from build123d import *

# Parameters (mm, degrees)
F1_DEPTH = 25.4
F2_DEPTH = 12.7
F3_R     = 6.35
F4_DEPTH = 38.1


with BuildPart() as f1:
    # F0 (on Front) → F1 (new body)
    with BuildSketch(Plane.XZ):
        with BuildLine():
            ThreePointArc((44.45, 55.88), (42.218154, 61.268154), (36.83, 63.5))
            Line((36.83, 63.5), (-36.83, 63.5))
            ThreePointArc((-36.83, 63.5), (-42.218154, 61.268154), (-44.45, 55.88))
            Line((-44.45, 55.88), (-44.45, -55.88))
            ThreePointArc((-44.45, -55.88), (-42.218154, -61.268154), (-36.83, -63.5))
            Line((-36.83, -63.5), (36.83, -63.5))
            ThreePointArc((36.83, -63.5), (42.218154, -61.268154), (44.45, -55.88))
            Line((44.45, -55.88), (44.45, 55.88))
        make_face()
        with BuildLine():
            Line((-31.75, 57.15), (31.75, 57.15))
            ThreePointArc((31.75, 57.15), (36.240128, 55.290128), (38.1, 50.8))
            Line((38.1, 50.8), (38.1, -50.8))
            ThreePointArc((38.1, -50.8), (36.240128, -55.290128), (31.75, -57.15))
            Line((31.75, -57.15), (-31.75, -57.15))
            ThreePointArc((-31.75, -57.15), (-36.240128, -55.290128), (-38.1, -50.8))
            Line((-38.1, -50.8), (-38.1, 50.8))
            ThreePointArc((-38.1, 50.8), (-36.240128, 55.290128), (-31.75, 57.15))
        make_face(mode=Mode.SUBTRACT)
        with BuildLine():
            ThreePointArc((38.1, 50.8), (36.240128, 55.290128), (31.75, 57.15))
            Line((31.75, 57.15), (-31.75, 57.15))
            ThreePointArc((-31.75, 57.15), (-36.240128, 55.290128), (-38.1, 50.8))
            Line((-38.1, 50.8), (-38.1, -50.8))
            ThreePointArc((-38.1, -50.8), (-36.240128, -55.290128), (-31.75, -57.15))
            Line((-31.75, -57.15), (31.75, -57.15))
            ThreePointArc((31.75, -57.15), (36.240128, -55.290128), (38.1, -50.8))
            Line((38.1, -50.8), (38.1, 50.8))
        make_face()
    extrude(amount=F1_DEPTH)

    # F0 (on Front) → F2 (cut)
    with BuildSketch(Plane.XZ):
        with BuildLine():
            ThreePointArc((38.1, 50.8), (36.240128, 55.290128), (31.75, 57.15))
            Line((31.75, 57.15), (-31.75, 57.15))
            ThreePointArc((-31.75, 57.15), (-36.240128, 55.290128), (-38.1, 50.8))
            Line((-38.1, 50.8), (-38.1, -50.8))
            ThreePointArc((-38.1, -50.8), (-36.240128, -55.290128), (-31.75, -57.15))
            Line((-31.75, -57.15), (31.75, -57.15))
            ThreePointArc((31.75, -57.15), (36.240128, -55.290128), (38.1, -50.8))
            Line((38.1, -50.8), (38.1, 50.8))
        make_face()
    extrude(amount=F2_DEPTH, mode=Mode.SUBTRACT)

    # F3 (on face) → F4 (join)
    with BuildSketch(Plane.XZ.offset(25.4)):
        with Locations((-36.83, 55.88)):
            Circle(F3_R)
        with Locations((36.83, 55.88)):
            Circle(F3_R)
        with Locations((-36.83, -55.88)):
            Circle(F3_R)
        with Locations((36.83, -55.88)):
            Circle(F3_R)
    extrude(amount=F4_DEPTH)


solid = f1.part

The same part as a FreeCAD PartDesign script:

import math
import FreeCAD as App
import Part
import Sketcher
from FreeCAD import Vector
Q = App.Units.Quantity

doc = App.newDocument("Part")
body = doc.addObject("PartDesign::Body", "Body")

# Sketch on XZ plane
sketch1 = body.newObject("Sketcher::SketchObject", "Sketch")
sketch1.AttachmentSupport = (doc.getObject("XZ_Plane"), [""])
sketch1.MapMode = "FlatFace"
sketch1.addGeometry([
    Part.ArcOfCircle(Part.Circle(Vector(37, 56, 0), Vector(0, 0, 1), 8), math.radians(0), math.radians(90)),  # 0
    Part.LineSegment(Vector(37, 64, 0), Vector(-37, 64, 0)),  # 1
    Part.ArcOfCircle(Part.Circle(Vector(-37, 56, 0), Vector(0, 0, 1), 8), math.radians(90), math.radians(180)),  # 2
    Part.LineSegment(Vector(-44, 56, 0), Vector(-44, -56, 0)),  # 3
    Part.ArcOfCircle(Part.Circle(Vector(-37, -56, 0), Vector(0, 0, 1), 8), math.radians(180), math.radians(270)),  # 4
    Part.LineSegment(Vector(-37, -64, 0), Vector(37, -64, 0)),  # 5
    Part.ArcOfCircle(Part.Circle(Vector(37, -56, 0), Vector(0, 0, 1), 8), math.radians(-90), math.radians(0)),  # 6
    Part.LineSegment(Vector(44, -56, 0), Vector(44, 56, 0)),  # 7
], False)
sketch1.addConstraint([
    Sketcher.Constraint("Tangent", 0, 2, 1, 1),
    Sketcher.Constraint("Tangent", 1, 2, 2, 1),
    Sketcher.Constraint("Tangent", 2, 2, 3, 1),
    Sketcher.Constraint("Tangent", 3, 2, 4, 1),
    Sketcher.Constraint("Tangent", 4, 2, 5, 1),
    Sketcher.Constraint("Tangent", 5, 2, 6, 1),
    Sketcher.Constraint("Tangent", 6, 2, 7, 1),
    Sketcher.Constraint("Tangent", 7, 2, 0, 1),
    Sketcher.Constraint("Horizontal", 1),
    Sketcher.Constraint("Vertical", 3),
    Sketcher.Constraint("Horizontal", 5),
    Sketcher.Constraint("Vertical", 7),
    Sketcher.Constraint("Equal", 0, 2),
    Sketcher.Constraint("Equal", 2, 4),
    Sketcher.Constraint("Equal", 4, 6),
    Sketcher.Constraint("Symmetric", 0, 3, 4, 3, -1, 1),
    Sketcher.Constraint("Radius", 0, Q("0.3 in")),
    Sketcher.Constraint("DistanceX", 1, 2, 1, 1, Q("2.9 in")),
    Sketcher.Constraint("DistanceY", 3, 2, 3, 1, Q("4.4 in")),
])
pad1 = body.newObject("PartDesign::Pad", "Pad")
pad1.Profile = sketch1
pad1.Length = Q("1 in")

# Sketch on XZ plane
sketch2 = body.newObject("Sketcher::SketchObject", "Sketch001")
sketch2.AttachmentSupport = (doc.getObject("XZ_Plane"), [""])
sketch2.MapMode = "FlatFace"
sketch2.addGeometry([
    Part.ArcOfCircle(Part.Circle(Vector(32, 51, 0), Vector(0, 0, 1), 6), math.radians(0), math.radians(90)),  # 0
    Part.LineSegment(Vector(32, 57, 0), Vector(-32, 57, 0)),  # 1
    Part.ArcOfCircle(Part.Circle(Vector(-32, 51, 0), Vector(0, 0, 1), 6), math.radians(90), math.radians(180)),  # 2
    Part.LineSegment(Vector(-38, 51, 0), Vector(-38, -51, 0)),  # 3
    Part.ArcOfCircle(Part.Circle(Vector(-32, -51, 0), Vector(0, 0, 1), 6), math.radians(-180), math.radians(-90)),  # 4
    Part.LineSegment(Vector(-32, -57, 0), Vector(32, -57, 0)),  # 5
    Part.ArcOfCircle(Part.Circle(Vector(32, -51, 0), Vector(0, 0, 1), 6), math.radians(-90), math.radians(0)),  # 6
    Part.LineSegment(Vector(38, -51, 0), Vector(38, 51, 0)),  # 7
], False)
sketch2.addConstraint([
    Sketcher.Constraint("Tangent", 0, 2, 1, 1),
    Sketcher.Constraint("Tangent", 1, 2, 2, 1),
    Sketcher.Constraint("Tangent", 2, 2, 3, 1),
    Sketcher.Constraint("Tangent", 3, 2, 4, 1),
    Sketcher.Constraint("Tangent", 4, 2, 5, 1),
    Sketcher.Constraint("Tangent", 5, 2, 6, 1),
    Sketcher.Constraint("Tangent", 6, 2, 7, 1),
    Sketcher.Constraint("Tangent", 7, 2, 0, 1),
    Sketcher.Constraint("Horizontal", 1),
    Sketcher.Constraint("Vertical", 3),
    Sketcher.Constraint("Horizontal", 5),
    Sketcher.Constraint("Vertical", 7),
    Sketcher.Constraint("Equal", 0, 2),
    Sketcher.Constraint("Equal", 2, 4),
    Sketcher.Constraint("Equal", 4, 6),
    Sketcher.Constraint("Symmetric", 0, 3, 4, 3, -1, 1),
    Sketcher.Constraint("DistanceY", 3, 2, 3, 1, Q("4 in")),
    Sketcher.Constraint("Radius", 0, Q("0.25 in")),
    Sketcher.Constraint("DistanceX", 1, 2, 1, 1, Q("2.5 in")),
])
pocket1 = body.newObject("PartDesign::Pocket", "Pocket")
pocket1.Profile = sketch2
pocket1.Length = Q("0.5 in")
pocket1.Reversed = True

# Sketch on XZ plane
sketch3 = body.newObject("Sketcher::SketchObject", "Sketch002")
sketch3.AttachmentSupport = (doc.getObject("XZ_Plane"), [""])
sketch3.MapMode = "FlatFace"
sketch3.AttachmentOffset = App.Placement(Vector(0, 0, 1 * 25.4), App.Rotation())
sketch3.addGeometry([
    Part.Circle(Vector(-37, 56, 0), Vector(0, 0, 1), 6),
    Part.Circle(Vector(37, 56, 0), Vector(0, 0, 1), 6),
    Part.Circle(Vector(-37, -56, 0), Vector(0, 0, 1), 6),
    Part.Circle(Vector(37, -56, 0), Vector(0, 0, 1), 6),
], False)
sketch3.addConstraint([
    Sketcher.Constraint("Equal", 0, 1),
    Sketcher.Constraint("Equal", 1, 2),
    Sketcher.Constraint("Equal", 2, 3),
    Sketcher.Constraint("Symmetric", 1, 3, 2, 3, -1, 1),
    Sketcher.Constraint("Symmetric", 0, 3, 3, 3, -1, 1),
    Sketcher.Constraint("Symmetric", 0, 3, 1, 3, -2),
    Sketcher.Constraint("Diameter", 0, Q("0.5 in")),
    Sketcher.Constraint("DistanceY", -1, 1, 0, 3, Q("2.2 in")),
    Sketcher.Constraint("DistanceX", 0, 3, 1, 3, Q("2.9 in")),
])
pad2 = body.newObject("PartDesign::Pad", "Pad001")
pad2.Profile = sketch3
pad2.Length = Q("1.5 in")

doc.recompute()
